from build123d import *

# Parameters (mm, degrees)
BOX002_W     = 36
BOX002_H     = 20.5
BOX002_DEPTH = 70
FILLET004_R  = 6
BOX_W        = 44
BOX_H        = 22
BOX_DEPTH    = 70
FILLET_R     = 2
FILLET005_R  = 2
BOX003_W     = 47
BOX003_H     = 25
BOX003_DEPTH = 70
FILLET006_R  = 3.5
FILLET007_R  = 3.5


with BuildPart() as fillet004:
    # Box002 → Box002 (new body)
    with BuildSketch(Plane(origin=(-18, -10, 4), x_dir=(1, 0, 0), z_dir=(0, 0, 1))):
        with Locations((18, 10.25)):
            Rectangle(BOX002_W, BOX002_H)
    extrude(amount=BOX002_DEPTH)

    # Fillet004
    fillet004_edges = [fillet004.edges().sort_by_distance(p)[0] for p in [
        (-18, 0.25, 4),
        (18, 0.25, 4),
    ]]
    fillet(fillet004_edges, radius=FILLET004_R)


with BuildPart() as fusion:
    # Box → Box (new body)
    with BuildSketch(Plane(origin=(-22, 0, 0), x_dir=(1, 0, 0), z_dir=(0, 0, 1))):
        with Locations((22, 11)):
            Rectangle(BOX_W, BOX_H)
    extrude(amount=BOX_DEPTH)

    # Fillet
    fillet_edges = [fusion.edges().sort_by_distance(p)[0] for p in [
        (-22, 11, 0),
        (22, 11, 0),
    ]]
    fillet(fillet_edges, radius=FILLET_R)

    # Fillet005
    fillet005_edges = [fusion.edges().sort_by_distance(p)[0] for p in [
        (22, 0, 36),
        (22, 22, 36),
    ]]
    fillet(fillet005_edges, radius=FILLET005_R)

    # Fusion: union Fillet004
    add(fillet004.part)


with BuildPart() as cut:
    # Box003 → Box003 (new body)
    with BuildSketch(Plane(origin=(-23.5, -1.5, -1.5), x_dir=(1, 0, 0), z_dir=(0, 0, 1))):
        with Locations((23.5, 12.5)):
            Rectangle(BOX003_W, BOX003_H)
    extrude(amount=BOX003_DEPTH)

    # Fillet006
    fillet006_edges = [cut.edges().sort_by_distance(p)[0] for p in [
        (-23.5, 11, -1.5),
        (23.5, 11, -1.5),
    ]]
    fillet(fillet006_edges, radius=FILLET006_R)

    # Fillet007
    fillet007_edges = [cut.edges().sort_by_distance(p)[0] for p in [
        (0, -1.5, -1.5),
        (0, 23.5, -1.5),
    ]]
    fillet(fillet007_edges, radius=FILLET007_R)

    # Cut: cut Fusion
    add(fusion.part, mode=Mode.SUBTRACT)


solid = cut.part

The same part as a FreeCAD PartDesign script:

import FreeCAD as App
import Part
import Sketcher
from FreeCAD import Vector


def edges_at(feature, points):
    """Names of the edges that pass closest to the given points."""
    edges = feature.Shape.Edges
    near = lambda p: min(range(len(edges)), key=lambda i: edges[i].distToShape(Part.Vertex(*p))[0])
    return sorted({f"Edge{near(p) + 1}" for p in points})

doc = App.newDocument("Part")
body = doc.addObject("PartDesign::Body", "Body")

# Sketch on XY plane
sketch1 = doc.addObject("Sketcher::SketchObject", "Sketch")
body.addObject(sketch1)
sketch1.AttachmentSupport = (doc.XY_Plane, [""])
sketch1.MapMode = "FlatFace"
sketch1.AttachmentOffset = App.Placement(Vector(0, 0, 4), App.Rotation())
sketch1.addGeometry([
    Part.LineSegment(Vector(-18, 10, 0), Vector(-18, -10, 0)),
    Part.LineSegment(Vector(-18, -10, 0), Vector(18, -10, 0)),
    Part.LineSegment(Vector(18, -10, 0), Vector(18, 10, 0)),
    Part.LineSegment(Vector(18, 10, 0), Vector(-18, 10, 0)),
], False)
sketch1.addConstraint([
    Sketcher.Constraint("Coincident", 0, 2, 1, 1),
    Sketcher.Constraint("Coincident", 1, 2, 2, 1),
    Sketcher.Constraint("Coincident", 2, 2, 3, 1),
    Sketcher.Constraint("Coincident", 3, 2, 0, 1),
    Sketcher.Constraint("Vertical", 0),
    Sketcher.Constraint("Horizontal", 1),
    Sketcher.Constraint("Vertical", 2),
    Sketcher.Constraint("Horizontal", 3),
    Sketcher.Constraint("DistanceX", 1, 1, 1, 2, 36.0),
    Sketcher.Constraint("DistanceY", 0, 2, 0, 1, 20.5),
    Sketcher.Constraint("DistanceX", 0, 2, -1, 1, 18.0),
    Sketcher.Constraint("DistanceY", 0, 2, -1, 1, 10.0),
])
pad1 = doc.addObject("PartDesign::Pad", "Pad")
body.addObject(pad1)
pad1.Profile = sketch1
pad1.Length = 70
doc.recompute()

fillet = doc.addObject("PartDesign::Fillet", "Fillet")
body.addObject(fillet)
fillet.Base = (pad1, edges_at(pad1, [(-18, 0.25, 4), (18, 0.25, 4)]))
fillet.Radius = 6
body2 = doc.addObject("PartDesign::Body", "Body001")

# Sketch on XY plane
sketch2 = doc.addObject("Sketcher::SketchObject", "Sketch001")
body2.addObject(sketch2)
sketch2.AttachmentSupport = (doc.getObject("XY_Plane001"), [""])
sketch2.MapMode = "FlatFace"
sketch2.addGeometry([
    Part.LineSegment(Vector(-22, 22, 0), Vector(-22, 0, 0)),
    Part.LineSegment(Vector(-22, 0, 0), Vector(22, 0, 0)),
    Part.LineSegment(Vector(22, 0, 0), Vector(22, 22, 0)),
    Part.LineSegment(Vector(22, 22, 0), Vector(-22, 22, 0)),
], False)
sketch2.addConstraint([
    Sketcher.Constraint("Coincident", 0, 2, 1, 1),
    Sketcher.Constraint("Coincident", 1, 2, 2, 1),
    Sketcher.Constraint("Coincident", 2, 2, 3, 1),
    Sketcher.Constraint("Coincident", 3, 2, 0, 1),
    Sketcher.Constraint("Vertical", 0),
    Sketcher.Constraint("Horizontal", 1),
    Sketcher.Constraint("Vertical", 2),
    Sketcher.Constraint("Horizontal", 3),
    Sketcher.Constraint("Symmetric", 0, 2, 1, 2, -1, 1),
    Sketcher.Constraint("DistanceX", 1, 1, 1, 2, 44.0),
    Sketcher.Constraint("DistanceY", 0, 2, 0, 1, 22.0),
])
pad2 = doc.addObject("PartDesign::Pad", "Pad001")
body2.addObject(pad2)
pad2.Profile = sketch2
pad2.Length = 70
doc.recompute()

fillet2 = doc.addObject("PartDesign::Fillet", "Fillet001")
body2.addObject(fillet2)
fillet2.Base = (pad2, edges_at(pad2, [(-22, 11, 0), (22, 11, 0)]))
fillet2.Radius = 2
doc.recompute()

fillet3 = doc.addObject("PartDesign::Fillet", "Fillet002")
body2.addObject(fillet3)
fillet3.Base = (fillet2, edges_at(fillet2, [(22, 0, 36), (22, 22, 36)]))
fillet3.Radius = 2
doc.recompute()

boolean = doc.addObject("PartDesign::Boolean", "Boolean")
body2.addObject(boolean)
boolean.Type = "Fuse"
boolean.addObjects([body])
body3 = doc.addObject("PartDesign::Body", "Body002")

# Sketch on XY plane
sketch3 = doc.addObject("Sketcher::SketchObject", "Sketch002")
body3.addObject(sketch3)
sketch3.AttachmentSupport = (doc.getObject("XY_Plane002"), [""])
sketch3.MapMode = "FlatFace"
sketch3.AttachmentOffset = App.Placement(Vector(0, 0, -1.5), App.Rotation())
sketch3.addGeometry([
    Part.LineSegment(Vector(-24, 24, 0), Vector(-24, -2, 0)),
    Part.LineSegment(Vector(-24, -2, 0), Vector(24, -2, 0)),
    Part.LineSegment(Vector(24, -2, 0), Vector(24, 24, 0)),
    Part.LineSegment(Vector(24, 24, 0), Vector(-24, 24, 0)),
], False)
sketch3.addConstraint([
    Sketcher.Constraint("Coincident", 0, 2, 1, 1),
    Sketcher.Constraint("Coincident", 1, 2, 2, 1),
    Sketcher.Constraint("Coincident", 2, 2, 3, 1),
    Sketcher.Constraint("Coincident", 3, 2, 0, 1),
    Sketcher.Constraint("Vertical", 0),
    Sketcher.Constraint("Horizontal", 1),
    Sketcher.Constraint("Vertical", 2),
    Sketcher.Constraint("Horizontal", 3),
    Sketcher.Constraint("DistanceX", 1, 1, 1, 2, 47.0),
    Sketcher.Constraint("DistanceY", 0, 2, 0, 1, 25.0),
    Sketcher.Constraint("DistanceX", 0, 2, -1, 1, 23.5),
    Sketcher.Constraint("DistanceY", 0, 2, -1, 1, 1.5),
])
pad3 = doc.addObject("PartDesign::Pad", "Pad002")
body3.addObject(pad3)
pad3.Profile = sketch3
pad3.Length = 70
doc.recompute()

fillet4 = doc.addObject("PartDesign::Fillet", "Fillet003")
body3.addObject(fillet4)
fillet4.Base = (pad3, edges_at(pad3, [(-23.5, 11, -1.5), (23.5, 11, -1.5)]))
fillet4.Radius = 3.5
doc.recompute()

fillet5 = doc.addObject("PartDesign::Fillet", "Fillet004")
body3.addObject(fillet5)
fillet5.Base = (fillet4, edges_at(fillet4, [(0, -1.5, -1.5), (0, 23.5, -1.5)]))
fillet5.Radius = 3.5
doc.recompute()

boolean2 = doc.addObject("PartDesign::Boolean", "Boolean001")
body3.addObject(boolean2)
boolean2.Type = "Cut"
boolean2.addObjects([body2])

doc.recompute()
